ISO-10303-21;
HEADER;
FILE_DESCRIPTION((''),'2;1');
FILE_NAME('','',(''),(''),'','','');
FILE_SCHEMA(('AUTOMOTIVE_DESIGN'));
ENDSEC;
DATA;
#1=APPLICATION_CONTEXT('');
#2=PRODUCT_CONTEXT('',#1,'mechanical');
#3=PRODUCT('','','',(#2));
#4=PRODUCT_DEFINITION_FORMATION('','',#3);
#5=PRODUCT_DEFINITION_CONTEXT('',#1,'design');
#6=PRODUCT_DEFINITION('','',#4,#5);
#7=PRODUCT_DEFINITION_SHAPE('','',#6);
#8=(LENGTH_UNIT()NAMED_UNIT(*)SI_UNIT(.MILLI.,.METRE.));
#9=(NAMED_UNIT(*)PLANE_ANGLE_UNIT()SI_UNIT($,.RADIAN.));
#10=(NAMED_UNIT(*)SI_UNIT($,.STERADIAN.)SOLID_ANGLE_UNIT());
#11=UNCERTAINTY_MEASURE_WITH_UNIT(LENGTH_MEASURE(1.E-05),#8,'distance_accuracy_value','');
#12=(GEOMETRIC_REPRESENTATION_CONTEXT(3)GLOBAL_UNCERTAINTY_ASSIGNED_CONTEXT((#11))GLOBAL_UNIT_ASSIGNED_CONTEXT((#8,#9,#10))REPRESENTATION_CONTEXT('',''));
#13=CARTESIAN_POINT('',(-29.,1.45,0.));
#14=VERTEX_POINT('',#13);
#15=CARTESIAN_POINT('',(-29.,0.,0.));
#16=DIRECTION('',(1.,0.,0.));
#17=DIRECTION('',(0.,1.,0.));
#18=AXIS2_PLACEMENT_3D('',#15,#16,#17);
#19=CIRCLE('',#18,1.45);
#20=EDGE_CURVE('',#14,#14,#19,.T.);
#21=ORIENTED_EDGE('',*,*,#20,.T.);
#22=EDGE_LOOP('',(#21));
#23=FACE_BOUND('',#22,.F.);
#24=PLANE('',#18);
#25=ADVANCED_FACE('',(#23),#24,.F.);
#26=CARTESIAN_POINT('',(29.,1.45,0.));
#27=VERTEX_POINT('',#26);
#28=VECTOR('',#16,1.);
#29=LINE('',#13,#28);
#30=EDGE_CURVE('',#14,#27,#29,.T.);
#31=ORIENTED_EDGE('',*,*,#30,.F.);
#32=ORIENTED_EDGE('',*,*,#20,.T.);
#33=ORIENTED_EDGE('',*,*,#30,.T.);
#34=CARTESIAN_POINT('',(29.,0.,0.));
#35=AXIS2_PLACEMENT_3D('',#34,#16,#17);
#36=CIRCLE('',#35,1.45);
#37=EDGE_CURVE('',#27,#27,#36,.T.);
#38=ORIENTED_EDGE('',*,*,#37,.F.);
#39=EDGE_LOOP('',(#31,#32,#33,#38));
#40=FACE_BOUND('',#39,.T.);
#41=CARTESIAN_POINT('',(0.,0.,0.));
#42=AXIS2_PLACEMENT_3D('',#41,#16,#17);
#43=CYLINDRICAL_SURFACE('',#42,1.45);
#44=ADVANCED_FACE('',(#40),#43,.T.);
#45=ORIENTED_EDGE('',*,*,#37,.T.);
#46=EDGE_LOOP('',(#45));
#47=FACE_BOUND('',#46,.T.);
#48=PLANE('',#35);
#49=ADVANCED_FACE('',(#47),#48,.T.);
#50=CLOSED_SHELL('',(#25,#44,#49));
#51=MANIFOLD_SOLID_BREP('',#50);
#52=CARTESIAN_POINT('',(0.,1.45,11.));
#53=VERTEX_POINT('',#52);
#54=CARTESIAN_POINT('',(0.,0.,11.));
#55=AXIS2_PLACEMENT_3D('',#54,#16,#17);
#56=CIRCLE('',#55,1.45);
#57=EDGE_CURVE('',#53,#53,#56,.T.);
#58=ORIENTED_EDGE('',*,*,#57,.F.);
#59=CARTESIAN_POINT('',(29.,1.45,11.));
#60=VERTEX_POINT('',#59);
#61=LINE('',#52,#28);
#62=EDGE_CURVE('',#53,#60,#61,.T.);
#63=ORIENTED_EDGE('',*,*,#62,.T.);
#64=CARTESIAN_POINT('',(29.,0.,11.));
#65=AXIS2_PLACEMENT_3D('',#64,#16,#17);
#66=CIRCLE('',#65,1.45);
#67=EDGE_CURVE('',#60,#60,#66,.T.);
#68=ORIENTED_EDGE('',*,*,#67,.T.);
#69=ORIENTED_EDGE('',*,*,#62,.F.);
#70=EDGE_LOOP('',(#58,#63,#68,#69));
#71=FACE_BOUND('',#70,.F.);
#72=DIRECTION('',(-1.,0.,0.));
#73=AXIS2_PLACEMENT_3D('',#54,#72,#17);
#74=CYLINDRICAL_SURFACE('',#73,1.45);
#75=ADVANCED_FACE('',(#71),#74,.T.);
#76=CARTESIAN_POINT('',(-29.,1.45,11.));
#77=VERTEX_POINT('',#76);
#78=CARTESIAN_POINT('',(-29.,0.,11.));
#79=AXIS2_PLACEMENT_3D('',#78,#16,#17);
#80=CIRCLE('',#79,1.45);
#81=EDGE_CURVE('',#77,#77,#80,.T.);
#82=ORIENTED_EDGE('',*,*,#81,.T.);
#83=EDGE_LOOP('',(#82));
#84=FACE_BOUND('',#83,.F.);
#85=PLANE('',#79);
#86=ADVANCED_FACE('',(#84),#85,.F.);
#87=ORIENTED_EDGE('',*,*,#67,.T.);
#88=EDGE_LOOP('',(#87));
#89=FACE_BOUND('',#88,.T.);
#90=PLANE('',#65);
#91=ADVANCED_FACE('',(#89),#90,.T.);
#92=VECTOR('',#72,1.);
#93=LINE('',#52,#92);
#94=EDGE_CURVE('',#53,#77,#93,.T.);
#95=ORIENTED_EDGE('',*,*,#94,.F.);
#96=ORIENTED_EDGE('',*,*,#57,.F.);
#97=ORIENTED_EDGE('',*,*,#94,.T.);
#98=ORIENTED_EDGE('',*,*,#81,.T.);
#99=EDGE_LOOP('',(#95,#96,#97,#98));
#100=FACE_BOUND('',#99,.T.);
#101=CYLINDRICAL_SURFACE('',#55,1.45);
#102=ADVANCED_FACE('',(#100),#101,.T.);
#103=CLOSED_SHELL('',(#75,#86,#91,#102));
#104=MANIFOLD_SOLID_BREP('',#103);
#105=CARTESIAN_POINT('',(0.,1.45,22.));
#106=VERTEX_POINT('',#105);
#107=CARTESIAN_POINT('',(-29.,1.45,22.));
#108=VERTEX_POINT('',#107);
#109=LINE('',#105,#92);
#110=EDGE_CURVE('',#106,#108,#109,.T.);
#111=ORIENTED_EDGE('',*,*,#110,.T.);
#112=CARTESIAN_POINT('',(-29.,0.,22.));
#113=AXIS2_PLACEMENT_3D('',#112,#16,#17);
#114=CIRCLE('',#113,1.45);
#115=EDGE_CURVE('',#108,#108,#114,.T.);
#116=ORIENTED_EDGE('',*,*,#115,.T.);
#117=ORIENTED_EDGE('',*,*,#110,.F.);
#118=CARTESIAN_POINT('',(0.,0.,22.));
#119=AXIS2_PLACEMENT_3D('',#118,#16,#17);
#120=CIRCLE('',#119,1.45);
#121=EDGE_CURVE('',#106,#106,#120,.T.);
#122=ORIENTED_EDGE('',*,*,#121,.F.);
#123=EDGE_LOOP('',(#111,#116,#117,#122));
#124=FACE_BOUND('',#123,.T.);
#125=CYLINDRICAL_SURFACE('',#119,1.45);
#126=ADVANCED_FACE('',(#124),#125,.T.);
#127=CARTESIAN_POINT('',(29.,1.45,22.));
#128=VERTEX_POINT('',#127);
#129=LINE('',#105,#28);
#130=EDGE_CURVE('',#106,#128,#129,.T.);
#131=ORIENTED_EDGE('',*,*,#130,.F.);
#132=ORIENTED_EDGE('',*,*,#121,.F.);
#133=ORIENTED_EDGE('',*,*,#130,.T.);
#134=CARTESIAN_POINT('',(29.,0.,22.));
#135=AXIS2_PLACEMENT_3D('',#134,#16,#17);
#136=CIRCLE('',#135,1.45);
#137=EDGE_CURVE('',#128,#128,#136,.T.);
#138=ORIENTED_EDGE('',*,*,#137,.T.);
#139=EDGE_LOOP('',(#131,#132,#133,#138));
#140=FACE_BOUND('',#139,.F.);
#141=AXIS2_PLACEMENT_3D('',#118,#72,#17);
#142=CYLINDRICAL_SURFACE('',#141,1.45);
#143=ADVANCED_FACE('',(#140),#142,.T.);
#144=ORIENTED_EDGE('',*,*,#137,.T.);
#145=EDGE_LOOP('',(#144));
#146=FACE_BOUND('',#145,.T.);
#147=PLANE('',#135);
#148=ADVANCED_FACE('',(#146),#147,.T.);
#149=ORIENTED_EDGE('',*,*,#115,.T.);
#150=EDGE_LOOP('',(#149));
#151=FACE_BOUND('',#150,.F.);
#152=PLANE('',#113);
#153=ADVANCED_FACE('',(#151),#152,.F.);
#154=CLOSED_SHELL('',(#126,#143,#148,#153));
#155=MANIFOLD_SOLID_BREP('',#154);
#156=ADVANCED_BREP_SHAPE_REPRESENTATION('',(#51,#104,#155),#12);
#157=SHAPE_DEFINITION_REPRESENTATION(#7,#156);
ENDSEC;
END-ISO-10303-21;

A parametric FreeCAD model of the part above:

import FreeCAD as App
import Part
import Sketcher

V = App.Vector
Q = App.Units.Quantity

doc = App.newDocument("Part")
body = doc.addObject("PartDesign::Body", "Body")
body.AllowCompound = True

# Sketch on YZ plane
sketch1 = body.newObject("Sketcher::SketchObject", "Sketch")
sketch1.AttachmentSupport = (doc.getObject("YZ_Plane"), [""])
sketch1.MapMode = "FlatFace"
sketch1.addGeometry([
    Part.Circle(V(0, 22, 0), V(0, 0, 1), 1.45),
    Part.Circle(V(0, 11, 0), V(0, 0, 1), 1.45),
    Part.Circle(V(0, 0, 0), V(0, 0, 1), 1.45),
], False)
sketch1.addConstraint([
    Sketcher.Constraint("Coincident", 2, 3, -1, 1),
    Sketcher.Constraint("Equal", 0, 1),
    Sketcher.Constraint("Equal", 1, 2),
    Sketcher.Constraint("PointOnObject", 0, 3, -2),
    Sketcher.Constraint("PointOnObject", 1, 3, -2),
    Sketcher.Constraint("Diameter", 0, Q("2.9 mm")),
    Sketcher.Constraint("DistanceY", -1, 1, 0, 3, Q("22 mm")),
    Sketcher.Constraint("DistanceY", -1, 1, 1, 3, Q("11 mm")),
])
pad1 = body.newObject("PartDesign::Pad", "Pad")
pad1.Profile = sketch1
pad1.Length = 58
pad1.Midplane = True

doc.recompute()
